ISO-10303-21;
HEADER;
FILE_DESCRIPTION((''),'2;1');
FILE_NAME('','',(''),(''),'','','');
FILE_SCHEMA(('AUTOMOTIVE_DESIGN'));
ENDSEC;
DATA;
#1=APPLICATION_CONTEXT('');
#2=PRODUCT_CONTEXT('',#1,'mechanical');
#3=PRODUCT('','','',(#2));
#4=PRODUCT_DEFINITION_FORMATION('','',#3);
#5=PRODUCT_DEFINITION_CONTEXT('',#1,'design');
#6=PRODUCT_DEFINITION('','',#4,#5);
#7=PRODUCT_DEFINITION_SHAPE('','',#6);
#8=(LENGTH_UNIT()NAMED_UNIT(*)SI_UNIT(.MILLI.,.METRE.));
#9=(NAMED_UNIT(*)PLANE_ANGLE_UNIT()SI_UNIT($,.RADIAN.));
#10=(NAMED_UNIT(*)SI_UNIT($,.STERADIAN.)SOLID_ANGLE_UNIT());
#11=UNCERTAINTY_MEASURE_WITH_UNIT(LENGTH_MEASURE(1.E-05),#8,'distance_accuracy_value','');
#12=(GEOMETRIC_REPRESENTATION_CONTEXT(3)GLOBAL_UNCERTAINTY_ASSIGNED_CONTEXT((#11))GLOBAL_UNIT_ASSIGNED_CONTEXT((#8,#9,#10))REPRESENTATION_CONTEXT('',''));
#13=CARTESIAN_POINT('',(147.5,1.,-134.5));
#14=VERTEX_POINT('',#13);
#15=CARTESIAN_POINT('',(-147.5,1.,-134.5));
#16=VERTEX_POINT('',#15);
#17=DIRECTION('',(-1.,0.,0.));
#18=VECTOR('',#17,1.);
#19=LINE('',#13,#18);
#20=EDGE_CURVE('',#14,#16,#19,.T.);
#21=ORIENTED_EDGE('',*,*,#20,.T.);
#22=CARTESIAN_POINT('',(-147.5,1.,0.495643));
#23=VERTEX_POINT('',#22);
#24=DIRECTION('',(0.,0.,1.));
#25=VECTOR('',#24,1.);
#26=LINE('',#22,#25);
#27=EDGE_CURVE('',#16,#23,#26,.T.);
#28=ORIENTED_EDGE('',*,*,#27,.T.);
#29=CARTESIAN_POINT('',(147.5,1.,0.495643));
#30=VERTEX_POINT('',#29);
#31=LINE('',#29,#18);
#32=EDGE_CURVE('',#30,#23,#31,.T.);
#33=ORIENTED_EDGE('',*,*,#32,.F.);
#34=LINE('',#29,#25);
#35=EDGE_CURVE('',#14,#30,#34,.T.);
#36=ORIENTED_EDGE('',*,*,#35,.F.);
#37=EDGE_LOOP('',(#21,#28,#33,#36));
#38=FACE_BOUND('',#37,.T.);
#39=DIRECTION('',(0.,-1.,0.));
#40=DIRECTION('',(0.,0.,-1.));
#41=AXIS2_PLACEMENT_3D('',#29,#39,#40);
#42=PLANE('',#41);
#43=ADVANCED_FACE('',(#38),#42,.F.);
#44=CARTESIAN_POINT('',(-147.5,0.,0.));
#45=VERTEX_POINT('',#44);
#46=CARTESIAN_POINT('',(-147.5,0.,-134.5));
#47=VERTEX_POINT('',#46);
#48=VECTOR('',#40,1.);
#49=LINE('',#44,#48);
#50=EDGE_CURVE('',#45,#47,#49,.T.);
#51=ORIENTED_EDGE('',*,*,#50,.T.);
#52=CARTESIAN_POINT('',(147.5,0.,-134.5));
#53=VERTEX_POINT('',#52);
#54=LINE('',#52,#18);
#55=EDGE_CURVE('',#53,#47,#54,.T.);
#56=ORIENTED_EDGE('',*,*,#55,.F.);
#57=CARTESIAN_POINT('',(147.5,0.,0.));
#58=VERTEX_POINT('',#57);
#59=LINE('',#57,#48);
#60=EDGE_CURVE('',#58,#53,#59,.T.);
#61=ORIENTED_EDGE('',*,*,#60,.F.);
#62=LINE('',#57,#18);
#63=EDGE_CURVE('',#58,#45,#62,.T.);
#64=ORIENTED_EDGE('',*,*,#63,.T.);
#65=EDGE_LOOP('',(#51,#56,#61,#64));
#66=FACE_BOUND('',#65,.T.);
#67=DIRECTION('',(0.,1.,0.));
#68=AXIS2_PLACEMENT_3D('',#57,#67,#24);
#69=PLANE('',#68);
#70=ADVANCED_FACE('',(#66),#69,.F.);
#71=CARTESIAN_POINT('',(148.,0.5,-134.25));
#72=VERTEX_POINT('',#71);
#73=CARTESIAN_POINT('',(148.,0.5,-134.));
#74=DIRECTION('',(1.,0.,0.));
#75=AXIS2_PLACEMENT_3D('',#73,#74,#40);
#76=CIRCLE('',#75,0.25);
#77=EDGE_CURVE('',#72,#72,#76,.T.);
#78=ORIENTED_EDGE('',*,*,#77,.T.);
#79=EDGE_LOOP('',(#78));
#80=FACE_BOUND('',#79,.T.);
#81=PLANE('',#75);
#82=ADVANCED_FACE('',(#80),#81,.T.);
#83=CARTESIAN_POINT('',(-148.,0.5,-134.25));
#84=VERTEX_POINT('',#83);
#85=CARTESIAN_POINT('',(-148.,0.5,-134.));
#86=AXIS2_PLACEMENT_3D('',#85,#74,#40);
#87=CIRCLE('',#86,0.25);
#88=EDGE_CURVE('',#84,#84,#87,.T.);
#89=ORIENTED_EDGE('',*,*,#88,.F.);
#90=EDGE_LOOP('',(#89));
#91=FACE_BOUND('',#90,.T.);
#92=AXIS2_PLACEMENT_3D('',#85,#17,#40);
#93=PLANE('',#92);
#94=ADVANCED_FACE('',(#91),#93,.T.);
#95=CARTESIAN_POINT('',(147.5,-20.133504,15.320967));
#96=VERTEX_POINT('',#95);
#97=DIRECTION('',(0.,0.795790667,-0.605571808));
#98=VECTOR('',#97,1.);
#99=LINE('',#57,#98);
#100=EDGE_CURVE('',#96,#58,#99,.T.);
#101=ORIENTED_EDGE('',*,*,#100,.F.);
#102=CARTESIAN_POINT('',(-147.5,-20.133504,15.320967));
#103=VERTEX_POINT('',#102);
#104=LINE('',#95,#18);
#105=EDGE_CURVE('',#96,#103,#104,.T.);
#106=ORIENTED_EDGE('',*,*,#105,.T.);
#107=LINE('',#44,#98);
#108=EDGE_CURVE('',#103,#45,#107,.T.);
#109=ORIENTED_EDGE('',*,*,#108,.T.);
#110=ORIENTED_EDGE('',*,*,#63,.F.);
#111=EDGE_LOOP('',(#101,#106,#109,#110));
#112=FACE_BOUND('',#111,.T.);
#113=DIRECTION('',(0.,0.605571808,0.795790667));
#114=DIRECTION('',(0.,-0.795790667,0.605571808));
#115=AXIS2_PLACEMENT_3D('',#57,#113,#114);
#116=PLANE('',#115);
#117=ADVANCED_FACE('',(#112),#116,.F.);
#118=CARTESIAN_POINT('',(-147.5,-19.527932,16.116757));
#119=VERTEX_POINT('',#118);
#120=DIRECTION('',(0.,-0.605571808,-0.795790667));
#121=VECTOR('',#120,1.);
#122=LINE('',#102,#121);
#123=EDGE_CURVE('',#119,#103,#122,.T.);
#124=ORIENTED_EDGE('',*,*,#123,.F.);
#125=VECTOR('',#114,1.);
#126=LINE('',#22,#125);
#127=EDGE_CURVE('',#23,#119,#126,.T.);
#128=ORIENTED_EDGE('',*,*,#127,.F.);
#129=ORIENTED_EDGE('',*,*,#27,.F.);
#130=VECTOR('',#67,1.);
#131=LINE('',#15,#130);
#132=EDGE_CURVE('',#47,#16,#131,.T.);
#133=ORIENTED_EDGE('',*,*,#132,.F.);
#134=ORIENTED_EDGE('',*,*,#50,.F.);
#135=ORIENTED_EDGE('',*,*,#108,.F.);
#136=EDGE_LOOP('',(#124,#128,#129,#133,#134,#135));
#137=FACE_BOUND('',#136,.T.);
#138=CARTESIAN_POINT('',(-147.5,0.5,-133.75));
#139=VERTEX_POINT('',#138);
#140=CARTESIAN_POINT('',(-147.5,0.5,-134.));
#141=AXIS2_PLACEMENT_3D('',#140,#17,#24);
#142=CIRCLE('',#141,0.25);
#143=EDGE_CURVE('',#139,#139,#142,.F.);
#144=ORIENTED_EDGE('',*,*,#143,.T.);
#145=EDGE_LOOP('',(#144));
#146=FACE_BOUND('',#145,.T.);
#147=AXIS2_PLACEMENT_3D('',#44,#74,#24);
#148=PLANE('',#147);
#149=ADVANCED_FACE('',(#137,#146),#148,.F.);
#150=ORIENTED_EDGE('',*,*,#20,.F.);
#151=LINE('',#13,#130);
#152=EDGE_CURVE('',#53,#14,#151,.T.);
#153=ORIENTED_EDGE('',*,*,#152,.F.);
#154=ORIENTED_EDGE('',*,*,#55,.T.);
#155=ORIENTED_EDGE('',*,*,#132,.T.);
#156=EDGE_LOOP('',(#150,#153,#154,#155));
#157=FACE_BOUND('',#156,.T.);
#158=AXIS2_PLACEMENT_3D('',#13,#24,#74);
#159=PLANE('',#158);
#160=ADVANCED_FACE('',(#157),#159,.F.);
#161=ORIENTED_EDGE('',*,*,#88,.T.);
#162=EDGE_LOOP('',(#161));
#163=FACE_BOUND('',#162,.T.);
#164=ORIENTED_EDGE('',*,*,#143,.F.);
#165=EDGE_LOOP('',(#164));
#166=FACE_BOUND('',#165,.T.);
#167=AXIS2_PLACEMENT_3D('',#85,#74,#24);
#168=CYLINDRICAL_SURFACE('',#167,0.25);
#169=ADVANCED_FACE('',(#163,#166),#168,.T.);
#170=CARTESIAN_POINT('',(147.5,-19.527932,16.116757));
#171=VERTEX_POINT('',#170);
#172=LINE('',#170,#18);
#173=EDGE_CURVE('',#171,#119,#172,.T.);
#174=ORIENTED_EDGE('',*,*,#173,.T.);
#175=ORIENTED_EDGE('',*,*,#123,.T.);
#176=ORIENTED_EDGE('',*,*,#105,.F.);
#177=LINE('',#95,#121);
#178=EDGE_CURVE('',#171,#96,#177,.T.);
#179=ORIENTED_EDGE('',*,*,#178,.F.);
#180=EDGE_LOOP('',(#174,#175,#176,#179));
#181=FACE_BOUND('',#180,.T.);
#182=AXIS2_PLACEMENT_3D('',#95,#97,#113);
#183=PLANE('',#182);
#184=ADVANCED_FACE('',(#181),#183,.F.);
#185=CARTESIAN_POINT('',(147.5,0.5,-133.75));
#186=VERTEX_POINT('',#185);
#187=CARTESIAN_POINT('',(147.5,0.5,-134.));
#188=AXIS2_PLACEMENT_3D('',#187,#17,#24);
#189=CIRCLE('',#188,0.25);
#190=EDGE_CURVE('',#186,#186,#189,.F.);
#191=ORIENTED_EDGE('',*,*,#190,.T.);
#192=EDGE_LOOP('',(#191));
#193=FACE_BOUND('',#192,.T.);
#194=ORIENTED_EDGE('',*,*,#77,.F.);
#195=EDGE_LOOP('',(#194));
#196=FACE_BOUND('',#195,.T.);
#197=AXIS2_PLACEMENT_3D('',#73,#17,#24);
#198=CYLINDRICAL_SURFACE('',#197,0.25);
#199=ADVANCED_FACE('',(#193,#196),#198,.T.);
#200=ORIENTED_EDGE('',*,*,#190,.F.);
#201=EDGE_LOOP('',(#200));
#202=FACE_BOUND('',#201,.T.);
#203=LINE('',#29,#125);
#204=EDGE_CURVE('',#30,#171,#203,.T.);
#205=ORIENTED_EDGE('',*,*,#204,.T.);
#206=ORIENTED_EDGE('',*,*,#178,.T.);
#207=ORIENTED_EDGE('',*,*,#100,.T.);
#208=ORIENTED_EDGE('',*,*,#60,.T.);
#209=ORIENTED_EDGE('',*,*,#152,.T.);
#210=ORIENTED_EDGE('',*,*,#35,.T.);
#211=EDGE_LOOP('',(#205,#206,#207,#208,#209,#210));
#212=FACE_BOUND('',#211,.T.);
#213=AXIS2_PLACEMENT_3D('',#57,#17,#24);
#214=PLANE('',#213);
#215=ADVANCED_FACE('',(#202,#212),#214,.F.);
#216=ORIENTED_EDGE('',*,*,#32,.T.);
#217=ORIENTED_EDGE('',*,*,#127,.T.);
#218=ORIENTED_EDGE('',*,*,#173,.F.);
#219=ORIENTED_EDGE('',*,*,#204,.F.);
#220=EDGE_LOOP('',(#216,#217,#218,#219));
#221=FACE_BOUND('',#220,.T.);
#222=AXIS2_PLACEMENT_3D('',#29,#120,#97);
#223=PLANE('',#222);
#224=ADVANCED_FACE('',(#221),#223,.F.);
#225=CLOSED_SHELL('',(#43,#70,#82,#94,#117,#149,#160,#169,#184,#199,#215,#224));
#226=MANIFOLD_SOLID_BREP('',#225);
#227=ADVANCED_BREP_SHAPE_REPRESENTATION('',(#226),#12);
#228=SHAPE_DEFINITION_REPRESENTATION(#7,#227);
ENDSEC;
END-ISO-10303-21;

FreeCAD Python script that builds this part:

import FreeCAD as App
import Part
import Sketcher
Q = App.Units.Quantity


def add_polygon(sketch, points):
    """Adds a closed chain of lines whose ends are joined by coincident constraints."""
    first, n = sketch.GeometryCount, len(points)
    for a, b in zip(points, points[1:] + points[:1]):
        sketch.addGeometry(Part.LineSegment(App.Vector(*a, 0), App.Vector(*b, 0)), False)
    for i in range(n):
        sketch.addConstraint(Sketcher.Constraint("Coincident", first + i, 2, first + (i + 1) % n, 1))

doc = App.newDocument("Part")
body = doc.addObject("PartDesign::Body", "Body")

# Sketch on YZ plane
sketch1 = doc.addObject("Sketcher::SketchObject", "Sketch")
body.addObject(sketch1)
sketch1.AttachmentSupport = (doc.YZ_Plane, [""])
sketch1.MapMode = "FlatFace"
add_polygon(sketch1, [(0, 0), (0, -134.5), (1, -134.5), (1, 0.5), (-19.5, 16.1), (-20.1, 15.3)])  # lines 0-5
sketch1.addConstraint([
    Sketcher.Constraint("Vertical", 0),
    Sketcher.Constraint("Horizontal", 1),
    Sketcher.Constraint("Vertical", 2),
    Sketcher.Constraint("Coincident", 5, 2, -1, 1),
    Sketcher.Constraint("Perpendicular", 3, 4),
    Sketcher.Constraint("Perpendicular", 4, 5),
    Sketcher.Constraint("DistanceX", 1, 1, 1, 2, 1.0),
    Sketcher.Constraint("Distance", 4, 1.0),
    Sketcher.Constraint("DistanceY", 0, 2, 0, 1, 134.5),
    Sketcher.Constraint("Distance", 5, 25.3),
    Sketcher.Constraint("Angle", 3, Q("142.73 deg")),
])
pad1 = doc.addObject("PartDesign::Pad", "Pad")
body.addObject(pad1)
pad1.Profile = sketch1
pad1.Length = 147.5

# Sketch on YZ plane
sketch2 = doc.addObject("Sketcher::SketchObject", "Sketch001")
body.addObject(sketch2)
sketch2.AttachmentSupport = (doc.YZ_Plane, [""])
sketch2.MapMode = "FlatFace"
sketch2.AttachmentOffset = App.Placement(App.Vector(0, 0, 147.5), App.Rotation())
sketch2.addGeometry(Part.Circle(App.Vector(0.5, -134, 0), App.Vector(0, 0, 1), 0.25), False)
sketch2.addConstraint([
    Sketcher.Constraint("Diameter", 0, 0.5),
    Sketcher.Constraint("DistanceY", 0, 3, -1, 1, 134.0),
    Sketcher.Constraint("DistanceX", -1, 1, 0, 3, 0.5),
])
pad2 = doc.addObject("PartDesign::Pad", "Pad001")
body.addObject(pad2)
pad2.Profile = sketch2
pad2.Length = 0.5
body2 = doc.addObject("PartDesign::Body", "Body001")
doc.recompute()

body2.BaseFeature = body
doc.recompute()

mirroring = doc.addObject("Part::Mirroring", "Mirroring")
mirroring.Source = body
mirroring.Base = App.Vector(0, 0, 0)
mirroring.Normal = App.Vector(-1, 0, 0)
body3 = doc.addObject("PartDesign::Body", "Body002")
body3.BaseFeature = mirroring
boolean = doc.addObject("PartDesign::Boolean", "Boolean")
body2.addObject(boolean)
boolean.Type = "Fuse"
boolean.addObjects([body3])
doc.recompute()
mirroring.Visibility = False

doc.recompute()
